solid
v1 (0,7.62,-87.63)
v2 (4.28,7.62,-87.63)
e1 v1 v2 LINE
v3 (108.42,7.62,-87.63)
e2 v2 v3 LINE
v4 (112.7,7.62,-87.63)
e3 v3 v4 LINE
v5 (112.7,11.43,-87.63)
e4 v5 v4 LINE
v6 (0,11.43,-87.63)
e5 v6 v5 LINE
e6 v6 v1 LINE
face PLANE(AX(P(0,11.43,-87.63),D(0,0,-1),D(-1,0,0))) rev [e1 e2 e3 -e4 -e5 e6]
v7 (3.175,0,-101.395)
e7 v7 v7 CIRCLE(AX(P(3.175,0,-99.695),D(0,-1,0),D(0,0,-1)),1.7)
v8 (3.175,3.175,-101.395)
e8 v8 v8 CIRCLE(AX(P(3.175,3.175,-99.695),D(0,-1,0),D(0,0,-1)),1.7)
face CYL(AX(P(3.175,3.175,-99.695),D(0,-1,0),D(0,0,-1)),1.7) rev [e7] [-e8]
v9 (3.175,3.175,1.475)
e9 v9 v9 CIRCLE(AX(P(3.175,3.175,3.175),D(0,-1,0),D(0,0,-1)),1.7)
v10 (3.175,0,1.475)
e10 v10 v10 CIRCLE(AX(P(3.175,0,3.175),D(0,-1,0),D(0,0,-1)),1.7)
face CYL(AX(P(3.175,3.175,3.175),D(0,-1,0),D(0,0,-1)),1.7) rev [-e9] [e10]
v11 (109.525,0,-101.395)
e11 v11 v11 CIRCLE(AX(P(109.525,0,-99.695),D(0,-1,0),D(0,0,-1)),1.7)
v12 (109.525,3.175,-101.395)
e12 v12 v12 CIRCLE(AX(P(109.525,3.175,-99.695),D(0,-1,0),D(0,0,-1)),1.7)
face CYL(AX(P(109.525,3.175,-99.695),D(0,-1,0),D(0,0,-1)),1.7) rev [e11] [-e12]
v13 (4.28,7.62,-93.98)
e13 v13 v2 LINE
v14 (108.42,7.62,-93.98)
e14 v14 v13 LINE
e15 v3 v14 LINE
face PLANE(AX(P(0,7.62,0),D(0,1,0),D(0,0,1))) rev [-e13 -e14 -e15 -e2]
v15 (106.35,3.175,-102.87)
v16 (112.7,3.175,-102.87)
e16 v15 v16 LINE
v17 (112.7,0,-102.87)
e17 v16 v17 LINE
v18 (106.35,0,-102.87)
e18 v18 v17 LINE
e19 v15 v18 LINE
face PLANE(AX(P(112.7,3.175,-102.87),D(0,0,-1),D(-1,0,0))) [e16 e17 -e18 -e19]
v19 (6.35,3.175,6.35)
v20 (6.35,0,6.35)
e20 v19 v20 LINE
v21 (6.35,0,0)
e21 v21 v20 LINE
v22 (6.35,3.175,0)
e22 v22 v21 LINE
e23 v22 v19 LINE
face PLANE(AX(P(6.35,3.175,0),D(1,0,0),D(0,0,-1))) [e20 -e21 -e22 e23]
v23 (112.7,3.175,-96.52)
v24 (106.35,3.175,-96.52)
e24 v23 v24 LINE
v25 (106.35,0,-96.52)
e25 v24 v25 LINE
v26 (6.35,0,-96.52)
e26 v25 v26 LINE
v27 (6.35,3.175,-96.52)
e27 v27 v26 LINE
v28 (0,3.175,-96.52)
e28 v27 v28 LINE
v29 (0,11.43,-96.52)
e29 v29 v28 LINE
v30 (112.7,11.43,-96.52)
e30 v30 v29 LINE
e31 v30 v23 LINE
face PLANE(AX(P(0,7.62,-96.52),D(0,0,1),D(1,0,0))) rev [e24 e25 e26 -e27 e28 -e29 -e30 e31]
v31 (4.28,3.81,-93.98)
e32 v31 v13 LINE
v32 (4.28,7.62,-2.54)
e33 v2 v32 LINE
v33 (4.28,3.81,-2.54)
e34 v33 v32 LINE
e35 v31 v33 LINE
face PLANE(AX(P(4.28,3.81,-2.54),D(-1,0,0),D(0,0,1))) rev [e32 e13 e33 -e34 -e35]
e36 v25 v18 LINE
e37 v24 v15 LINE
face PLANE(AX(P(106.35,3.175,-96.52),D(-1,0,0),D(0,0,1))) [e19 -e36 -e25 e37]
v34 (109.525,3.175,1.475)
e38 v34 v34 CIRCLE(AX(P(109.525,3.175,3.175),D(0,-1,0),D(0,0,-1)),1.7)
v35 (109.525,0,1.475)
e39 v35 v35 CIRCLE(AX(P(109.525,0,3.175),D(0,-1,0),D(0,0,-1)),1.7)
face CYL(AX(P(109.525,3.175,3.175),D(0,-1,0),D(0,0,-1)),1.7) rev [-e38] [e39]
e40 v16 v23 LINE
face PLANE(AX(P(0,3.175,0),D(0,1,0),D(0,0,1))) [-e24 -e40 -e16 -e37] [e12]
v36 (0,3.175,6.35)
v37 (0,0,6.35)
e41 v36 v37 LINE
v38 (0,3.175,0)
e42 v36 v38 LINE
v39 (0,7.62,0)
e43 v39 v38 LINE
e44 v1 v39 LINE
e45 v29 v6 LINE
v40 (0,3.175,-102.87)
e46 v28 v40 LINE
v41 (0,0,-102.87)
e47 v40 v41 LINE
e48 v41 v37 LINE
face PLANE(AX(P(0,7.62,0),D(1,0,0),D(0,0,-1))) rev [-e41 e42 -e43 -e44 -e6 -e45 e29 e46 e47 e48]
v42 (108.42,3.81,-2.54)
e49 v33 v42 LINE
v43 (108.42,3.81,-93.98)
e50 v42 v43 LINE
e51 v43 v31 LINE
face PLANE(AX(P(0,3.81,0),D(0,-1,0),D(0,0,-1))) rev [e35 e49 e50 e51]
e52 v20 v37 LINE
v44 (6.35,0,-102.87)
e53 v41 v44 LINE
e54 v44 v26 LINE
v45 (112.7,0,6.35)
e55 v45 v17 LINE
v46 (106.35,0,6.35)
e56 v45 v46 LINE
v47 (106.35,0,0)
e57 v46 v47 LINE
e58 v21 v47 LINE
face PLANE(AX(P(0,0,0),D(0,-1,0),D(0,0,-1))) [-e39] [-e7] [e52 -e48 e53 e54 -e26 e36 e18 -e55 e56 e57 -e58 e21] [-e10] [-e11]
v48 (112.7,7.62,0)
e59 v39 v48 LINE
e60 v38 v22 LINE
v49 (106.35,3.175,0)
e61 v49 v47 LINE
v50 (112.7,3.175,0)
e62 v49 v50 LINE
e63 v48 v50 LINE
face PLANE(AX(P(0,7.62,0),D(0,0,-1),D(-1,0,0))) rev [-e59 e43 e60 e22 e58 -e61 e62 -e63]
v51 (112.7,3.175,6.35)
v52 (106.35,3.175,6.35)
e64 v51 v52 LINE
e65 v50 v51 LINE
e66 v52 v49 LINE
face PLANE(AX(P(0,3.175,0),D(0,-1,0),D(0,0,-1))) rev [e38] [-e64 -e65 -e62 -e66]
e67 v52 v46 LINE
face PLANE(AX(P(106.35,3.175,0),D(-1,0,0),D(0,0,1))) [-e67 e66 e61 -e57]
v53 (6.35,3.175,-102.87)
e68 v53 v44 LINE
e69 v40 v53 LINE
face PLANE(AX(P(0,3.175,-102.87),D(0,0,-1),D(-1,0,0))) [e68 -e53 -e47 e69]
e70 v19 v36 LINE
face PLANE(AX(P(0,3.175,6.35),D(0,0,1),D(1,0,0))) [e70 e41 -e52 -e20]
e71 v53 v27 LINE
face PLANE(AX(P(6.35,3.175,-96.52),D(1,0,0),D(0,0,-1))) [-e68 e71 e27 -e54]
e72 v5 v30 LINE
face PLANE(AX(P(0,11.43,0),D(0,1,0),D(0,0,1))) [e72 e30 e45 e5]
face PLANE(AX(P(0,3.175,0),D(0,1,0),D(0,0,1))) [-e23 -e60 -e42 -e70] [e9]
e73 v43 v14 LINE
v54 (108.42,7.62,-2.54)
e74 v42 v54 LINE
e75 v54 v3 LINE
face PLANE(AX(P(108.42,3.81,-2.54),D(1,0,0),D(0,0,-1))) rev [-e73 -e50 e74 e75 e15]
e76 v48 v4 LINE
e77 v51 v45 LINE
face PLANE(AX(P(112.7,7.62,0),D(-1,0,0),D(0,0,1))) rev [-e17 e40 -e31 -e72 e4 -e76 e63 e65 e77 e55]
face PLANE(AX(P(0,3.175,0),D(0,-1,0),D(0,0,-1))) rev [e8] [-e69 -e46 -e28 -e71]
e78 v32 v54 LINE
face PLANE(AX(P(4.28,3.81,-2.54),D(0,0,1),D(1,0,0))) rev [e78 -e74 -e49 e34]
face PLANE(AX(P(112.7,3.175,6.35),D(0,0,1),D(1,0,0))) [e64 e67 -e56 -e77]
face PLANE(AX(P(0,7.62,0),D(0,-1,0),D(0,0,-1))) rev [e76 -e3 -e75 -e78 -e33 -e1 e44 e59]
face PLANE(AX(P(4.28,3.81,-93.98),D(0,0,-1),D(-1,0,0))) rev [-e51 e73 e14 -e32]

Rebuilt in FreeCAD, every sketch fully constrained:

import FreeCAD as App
import Part
import Sketcher

V = App.Vector
Q = App.Units.Quantity


def add_polygon(sketch, points):
    """Adds a closed chain of lines whose ends are joined by coincident constraints."""
    first, n = sketch.GeometryCount, len(points)
    for a, b in zip(points, points[1:] + points[:1]):
        sketch.addGeometry(Part.LineSegment(App.Vector(*a, 0), App.Vector(*b, 0)), False)
    for i in range(n):
        sketch.addConstraint(Sketcher.Constraint("Coincident", first + i, 2, first + (i + 1) % n, 1))

doc = App.newDocument("Part")
params = doc.addObject("Spreadsheet::Sheet", "Params")
for row, (alias, value) in enumerate([
    ("sketch1_height", "3.8 in"),
    ("pad1_length", "0.3 in"),
    ("sketch2_width", "4.1 in"),
    ("sketch2_height", "3.6 in"),
    ("pocket1_length", "0.15 in"),
    ("sketch3_width", "0.25 in"),
    ("pad2_length", "0.125 in"),
    ("sketch4_height", "0.35 in"),
    ("pad3_length", "0.15 in"),
], start=1):
    params.set(f"A{row}", alias)
    params.set(f"B{row}", "=" + value)
    params.setAlias(f"B{row}", alias)

body = doc.addObject("PartDesign::Body", "Body")

sketch1 = body.newObject("Sketcher::SketchObject", "Sketch")
sketch1.AttachmentSupport = (doc.getObject("XZ_Plane"), [""])
sketch1.MapMode = "FlatFace"
add_polygon(sketch1, [(0, -97), (0, 0), (113, 0), (113, -97)])
sketch1.addConstraint([
    Sketcher.Constraint("Vertical", 0),
    Sketcher.Constraint("Horizontal", 1),
    Sketcher.Constraint("Vertical", 2),
    Sketcher.Constraint("Horizontal", 3),
    Sketcher.Constraint("Coincident", 0, 2, -1, 1),
    Sketcher.Constraint("DistanceY", 0, 1, 0, 2, Q("3.8 in")),
    Sketcher.Constraint("DistanceX", 1, 1, 1, 2, 112.7),
])
sketch1.setExpression("Constraints[9]", "Params.sketch1_height")
pad1 = body.newObject("PartDesign::Pad", "Pad")
pad1.Profile = sketch1
pad1.setExpression("Length", "Params.pad1_length")
pad1.Reversed = True

sketch2 = body.newObject("Sketcher::SketchObject", "Sketch001")
sketch2.AttachmentSupport = (doc.getObject("XZ_Plane"), [""])
sketch2.MapMode = "FlatFace"
sketch2.AttachmentOffset = App.Placement(V(0, 0, -0.3 * 25.4), App.Rotation())
add_polygon(sketch2, [(4, -94), (4, -3), (108, -3), (108, -94)])
sketch2.addConstraint([
    Sketcher.Constraint("Vertical", 0),
    Sketcher.Constraint("Horizontal", 1),
    Sketcher.Constraint("Vertical", 2),
    Sketcher.Constraint("Horizontal", 3),
    Sketcher.Constraint("DistanceX", 1, 1, 1, 2, Q("4.1 in")),
    Sketcher.Constraint("DistanceY", 0, 1, 0, 2, Q("3.6 in")),
    Sketcher.Constraint("DistanceY", 0, 2, -1, 1, Q("0.1 in")),
    Sketcher.Constraint("DistanceX", -1, 1, 0, 2, 4.28),
])
sketch2.setExpression("Constraints[8]", "Params.sketch2_width")
sketch2.setExpression("Constraints[9]", "Params.sketch2_height")
pocket1 = body.newObject("PartDesign::Pocket", "Pocket")
pocket1.Profile = sketch2
pocket1.setExpression("Length", "Params.pocket1_length")
pocket1.Reversed = True

sketch3 = body.newObject("Sketcher::SketchObject", "Sketch002")
sketch3.AttachmentSupport = (doc.getObject("XZ_Plane"), [""])
sketch3.MapMode = "FlatFace"
add_polygon(sketch3, [(106.3, 6.3), (106.3, 0), (112.7, 0), (112.7, 6.3)])
sketch3.addGeometry(Part.Circle(V(109.5, 3.2, 0), V(0, 0, 1), 1.7), False)
add_polygon(sketch3, [(0, 6.3), (0, 0), (6.3, 0), (6.3, 6.3)])
sketch3.addGeometry(Part.Circle(V(3.2, 3.2, 0), V(0, 0, 1), 1.7), False)
add_polygon(sketch3, [(0, -96.5), (0, -102.9), (6.3, -102.9), (6.3, -96.5)])
sketch3.addGeometry(Part.Circle(V(3.2, -99.7, 0), V(0, 0, 1), 1.7), False)
add_polygon(sketch3, [(106.3, -96.5), (106.3, -102.9), (112.7, -102.9), (112.7, -96.5)])
sketch3.addGeometry(Part.Circle(V(109.5, -99.7, 0), V(0, 0, 1), 1.7), False)
sketch3.addConstraint([
    Sketcher.Constraint("Vertical", 0),
    Sketcher.Constraint("Horizontal", 1),
    Sketcher.Constraint("Vertical", 2),
    Sketcher.Constraint("Horizontal", 3),
    Sketcher.Constraint("Vertical", 5),
    Sketcher.Constraint("Horizontal", 6),
    Sketcher.Constraint("Vertical", 7),
    Sketcher.Constraint("Horizontal", 8),
    Sketcher.Constraint("Vertical", 10),
    Sketcher.Constraint("Horizontal", 11),
    Sketcher.Constraint("Vertical", 12),
    Sketcher.Constraint("Horizontal", 13),
    Sketcher.Constraint("Vertical", 15),
    Sketcher.Constraint("Horizontal", 16),
    Sketcher.Constraint("Vertical", 17),
    Sketcher.Constraint("Horizontal", 18),
    Sketcher.Constraint("Coincident", 5, 2, -1, 1),
    Sketcher.Constraint("Equal", 4, 9),
    Sketcher.Constraint("Equal", 9, 14),
    Sketcher.Constraint("Equal", 14, 19),
    Sketcher.Constraint("PointOnObject", 0, 2, -1),
    Sketcher.Constraint("PointOnObject", 10, 2, -2),
    Sketcher.Constraint("Horizontal", 4, 3, 9, 3),
    Sketcher.Constraint("Horizontal", 14, 3, 19, 3),
    Sketcher.Constraint("Horizontal", 3, 2, 7, 2),
    Sketcher.Constraint("Horizontal", 11, 2, 15, 2),
    Sketcher.Constraint("Horizontal", 13, 2, 17, 2),
    Sketcher.Constraint("Vertical", 9, 3, 14, 3),
    Sketcher.Constraint("Vertical", 4, 3, 19, 3),
    Sketcher.Constraint("Vertical", 7, 2, 11, 2),
    Sketcher.Constraint("Vertical", 3, 2, 15, 2),
    Sketcher.Constraint("Vertical", 2, 2, 16, 2),
    Sketcher.Constraint("Equal", 3, 6),
    Sketcher.Constraint("Equal", 18, 0),
    Sketcher.Constraint("Equal", 7, 10),
    Sketcher.Constraint("DistanceX", 1, 1, 1, 2, Q("0.25 in")),
    Sketcher.Constraint("DistanceY", 12, 2, -1, 1, Q("3.8 in")),
    Sketcher.Constraint("Diameter", 4, 3.4),
    Sketcher.Constraint("DistanceY", 14, 3, 9, 3, Q("4.05 in")),
    Sketcher.Constraint("DistanceY", -1, 1, 4, 3, Q("0.125 in")),
    Sketcher.Constraint("DistanceX", -1, 1, 9, 3, Q("0.125 in")),
    Sketcher.Constraint("DistanceX", 0, 2, 4, 3, Q("0.125 in")),
    Sketcher.Constraint("DistanceX", -1, 1, 4, 3, 109.525),
])
sketch3.setExpression("Constraints[51]", "Params.sketch3_width")
pad2 = body.newObject("PartDesign::Pad", "Pad001")
pad2.Profile = sketch3
pad2.setExpression("Length", "Params.pad2_length")
pad2.Reversed = True

sketch4 = body.newObject("Sketcher::SketchObject", "Sketch003")
sketch4.AttachmentSupport = (doc.getObject("XZ_Plane"), [""])
sketch4.MapMode = "FlatFace"
sketch4.AttachmentOffset = App.Placement(V(0, 0, -0.3 * 25.4), App.Rotation())
add_polygon(sketch4, [(0, -97), (0, -88), (113, -88), (113, -97)])
sketch4.addConstraint([
    Sketcher.Constraint("Vertical", 0),
    Sketcher.Constraint("Horizontal", 1),
    Sketcher.Constraint("Vertical", 2),
    Sketcher.Constraint("Horizontal", 3),
    Sketcher.Constraint("PointOnObject", 0, 2, -2),
    Sketcher.Constraint("DistanceY", 0, 1, 0, 2, Q("0.35 in")),
    Sketcher.Constraint("DistanceY", 2, 2, -1, 1, Q("3.8 in")),
    Sketcher.Constraint("DistanceX", 1, 1, 1, 2, 112.7),
])
sketch4.setExpression("Constraints[9]", "Params.sketch4_height")
pad3 = body.newObject("PartDesign::Pad", "Pad002")
pad3.Profile = sketch4
pad3.setExpression("Length", "Params.pad3_length")
pad3.Reversed = True

doc.recompute()
